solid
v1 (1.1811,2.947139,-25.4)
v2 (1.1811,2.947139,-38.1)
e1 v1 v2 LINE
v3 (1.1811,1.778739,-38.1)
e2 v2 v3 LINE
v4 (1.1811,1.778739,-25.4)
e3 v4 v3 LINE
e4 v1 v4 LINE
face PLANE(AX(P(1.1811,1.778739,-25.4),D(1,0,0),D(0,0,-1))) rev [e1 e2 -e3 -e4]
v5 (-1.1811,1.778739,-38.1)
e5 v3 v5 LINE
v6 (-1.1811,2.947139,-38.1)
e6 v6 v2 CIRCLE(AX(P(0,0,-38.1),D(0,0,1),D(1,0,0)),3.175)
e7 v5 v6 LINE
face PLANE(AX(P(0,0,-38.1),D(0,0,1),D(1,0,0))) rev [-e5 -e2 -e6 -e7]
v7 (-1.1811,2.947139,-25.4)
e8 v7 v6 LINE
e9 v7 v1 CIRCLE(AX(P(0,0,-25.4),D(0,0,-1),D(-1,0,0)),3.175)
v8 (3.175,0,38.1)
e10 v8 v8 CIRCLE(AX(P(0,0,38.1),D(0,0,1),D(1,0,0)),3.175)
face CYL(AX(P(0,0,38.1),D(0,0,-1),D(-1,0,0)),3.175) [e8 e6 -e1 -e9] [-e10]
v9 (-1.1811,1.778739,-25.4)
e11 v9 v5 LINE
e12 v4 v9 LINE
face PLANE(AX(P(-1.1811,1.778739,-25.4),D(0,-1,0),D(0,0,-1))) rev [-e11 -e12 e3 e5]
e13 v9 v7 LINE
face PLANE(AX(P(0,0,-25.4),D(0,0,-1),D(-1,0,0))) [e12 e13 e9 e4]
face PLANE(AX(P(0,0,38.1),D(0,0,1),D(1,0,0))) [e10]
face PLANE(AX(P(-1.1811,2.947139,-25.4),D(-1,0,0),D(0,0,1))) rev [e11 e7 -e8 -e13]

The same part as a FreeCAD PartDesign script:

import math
import FreeCAD as App
import Part
import Sketcher
Q = App.Units.Quantity

doc = App.newDocument("Part")
body = doc.addObject("PartDesign::Body", "Body")

sketch1 = body.newObject("Sketcher::SketchObject", "Sketch")
sketch1.AttachmentSupport = (doc.getObject("XY_Plane"), [""])
sketch1.MapMode = "FlatFace"
sketch1.addGeometry(Part.Circle(App.Vector(0, 0, 0), App.Vector(0, 0, 1), 3.2), False)
sketch1.addConstraint([
    Sketcher.Constraint("Coincident", 0, 3, -1, 1),
    Sketcher.Constraint("Diameter", 0, Q("0.25 in")),
])
pad1 = body.newObject("PartDesign::Pad", "Pad")
pad1.Profile = sketch1
pad1.Type = "TwoLengths"
pad1.Length = Q("1.5 in")
pad1.Length2 = Q("1.5 in")

sketch2 = body.newObject("Sketcher::SketchObject", "Sketch001")
sketch2.AttachmentSupport = (doc.getObject("XY_Plane"), [""])
sketch2.MapMode = "FlatFace"
sketch2.AttachmentOffset = App.Placement(App.Vector(0, 0, -1.5 * 25.4), App.Rotation())
sketch2.addGeometry([
    Part.LineSegment(App.Vector(-1.2, 1.8, 0), App.Vector(-1.2, 2.9, 0)),
    Part.ArcOfCircle(Part.Circle(App.Vector(0, 0, 0), App.Vector(0, 0, 1), 3.2), math.radians(68), math.radians(112)),
    Part.LineSegment(App.Vector(1.2, 2.9, 0), App.Vector(1.2, 1.8, 0)),
    Part.LineSegment(App.Vector(1.2, 1.8, 0), App.Vector(-1.2, 1.8, 0)),
], False)
sketch2.addConstraint([
    Sketcher.Constraint("Coincident", 0, 2, 1, 2),
    Sketcher.Constraint("Coincident", 1, 1, 2, 1),
    Sketcher.Constraint("Coincident", 2, 2, 3, 1),
    Sketcher.Constraint("Coincident", 3, 2, 0, 1),
    Sketcher.Constraint("Vertical", 0),
    Sketcher.Constraint("Vertical", 2),
    Sketcher.Constraint("Horizontal", 3),
    Sketcher.Constraint("Coincident", 1, 3, -1, 1),
    Sketcher.Constraint("Horizontal", 0, 2, 1, 1),
    Sketcher.Constraint("Radius", 1, Q("0.125 in")),
    Sketcher.Constraint("DistanceX", 3, 2, 3, 1, Q("0.093 in")),
    Sketcher.Constraint("DistanceY", 0, 1, 0, 2, Q("0.046 in")),
])
pocket1 = body.newObject("PartDesign::Pocket", "Pocket")
pocket1.Profile = sketch2
pocket1.Length = Q("0.5 in")
pocket1.Reversed = True

doc.recompute()
